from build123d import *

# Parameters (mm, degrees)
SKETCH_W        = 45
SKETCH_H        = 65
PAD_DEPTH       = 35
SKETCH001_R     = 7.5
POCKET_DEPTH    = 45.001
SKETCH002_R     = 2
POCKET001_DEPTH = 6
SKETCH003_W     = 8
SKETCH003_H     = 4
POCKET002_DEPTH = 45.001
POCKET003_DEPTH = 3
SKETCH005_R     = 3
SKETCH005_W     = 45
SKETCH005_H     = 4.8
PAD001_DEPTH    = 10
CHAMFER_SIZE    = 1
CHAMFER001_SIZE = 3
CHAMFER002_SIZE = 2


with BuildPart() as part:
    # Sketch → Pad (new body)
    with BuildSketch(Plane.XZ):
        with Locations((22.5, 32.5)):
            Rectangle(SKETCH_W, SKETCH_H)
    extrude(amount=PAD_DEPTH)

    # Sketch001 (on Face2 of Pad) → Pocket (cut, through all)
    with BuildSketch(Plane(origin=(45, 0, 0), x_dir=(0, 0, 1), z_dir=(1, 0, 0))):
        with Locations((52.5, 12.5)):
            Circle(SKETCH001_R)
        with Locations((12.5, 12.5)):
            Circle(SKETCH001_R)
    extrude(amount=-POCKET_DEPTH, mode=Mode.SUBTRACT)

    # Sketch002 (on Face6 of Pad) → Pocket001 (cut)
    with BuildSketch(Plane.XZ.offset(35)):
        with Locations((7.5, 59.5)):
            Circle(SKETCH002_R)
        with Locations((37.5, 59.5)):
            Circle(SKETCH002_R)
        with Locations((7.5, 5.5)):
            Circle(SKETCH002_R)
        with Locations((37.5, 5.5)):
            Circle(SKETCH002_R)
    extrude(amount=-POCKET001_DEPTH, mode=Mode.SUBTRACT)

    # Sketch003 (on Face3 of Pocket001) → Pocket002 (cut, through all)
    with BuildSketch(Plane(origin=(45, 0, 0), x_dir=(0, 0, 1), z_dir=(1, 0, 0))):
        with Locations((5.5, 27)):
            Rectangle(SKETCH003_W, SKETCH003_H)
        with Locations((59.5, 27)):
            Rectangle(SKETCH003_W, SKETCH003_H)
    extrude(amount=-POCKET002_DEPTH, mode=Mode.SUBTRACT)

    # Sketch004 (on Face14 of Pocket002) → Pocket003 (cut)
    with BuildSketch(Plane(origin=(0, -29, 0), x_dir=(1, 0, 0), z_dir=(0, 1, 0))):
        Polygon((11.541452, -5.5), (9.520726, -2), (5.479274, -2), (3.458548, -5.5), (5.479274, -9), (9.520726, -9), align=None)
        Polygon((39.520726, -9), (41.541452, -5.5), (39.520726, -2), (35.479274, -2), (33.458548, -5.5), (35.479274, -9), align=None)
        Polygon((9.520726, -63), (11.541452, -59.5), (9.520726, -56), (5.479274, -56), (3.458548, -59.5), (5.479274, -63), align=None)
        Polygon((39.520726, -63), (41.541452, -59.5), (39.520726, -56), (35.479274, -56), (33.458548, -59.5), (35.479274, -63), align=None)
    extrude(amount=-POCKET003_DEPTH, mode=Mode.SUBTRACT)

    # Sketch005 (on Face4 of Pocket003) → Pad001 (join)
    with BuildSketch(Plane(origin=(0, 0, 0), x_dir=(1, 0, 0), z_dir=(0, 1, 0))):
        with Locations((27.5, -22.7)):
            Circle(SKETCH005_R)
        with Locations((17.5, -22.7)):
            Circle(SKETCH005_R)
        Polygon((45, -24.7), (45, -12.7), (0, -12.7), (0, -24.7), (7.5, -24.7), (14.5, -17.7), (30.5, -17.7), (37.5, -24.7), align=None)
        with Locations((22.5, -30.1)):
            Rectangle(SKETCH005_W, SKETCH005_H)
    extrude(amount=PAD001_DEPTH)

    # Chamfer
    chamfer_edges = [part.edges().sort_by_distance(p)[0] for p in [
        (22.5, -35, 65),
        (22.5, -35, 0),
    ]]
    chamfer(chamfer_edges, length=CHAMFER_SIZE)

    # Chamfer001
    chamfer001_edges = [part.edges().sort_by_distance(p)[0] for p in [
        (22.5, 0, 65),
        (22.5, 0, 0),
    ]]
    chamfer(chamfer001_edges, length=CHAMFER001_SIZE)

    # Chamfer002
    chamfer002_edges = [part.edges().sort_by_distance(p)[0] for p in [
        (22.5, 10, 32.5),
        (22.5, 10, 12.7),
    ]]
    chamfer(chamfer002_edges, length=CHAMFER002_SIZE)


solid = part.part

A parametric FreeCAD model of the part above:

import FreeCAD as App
import Part
import Sketcher
Q = App.Units.Quantity


def edges_at(feature, points):
    """Names of the edges that pass closest to the given points."""
    edges = feature.Shape.Edges
    near = lambda p: min(range(len(edges)), key=lambda i: edges[i].distToShape(Part.Vertex(*p))[0])
    return sorted({f"Edge{near(p) + 1}" for p in points})


def add_polygon(sketch, points):
    """Adds a closed chain of lines whose ends are joined by coincident constraints."""
    first, n = sketch.GeometryCount, len(points)
    for a, b in zip(points, points[1:] + points[:1]):
        sketch.addGeometry(Part.LineSegment(App.Vector(*a, 0), App.Vector(*b, 0)), False)
    for i in range(n):
        sketch.addConstraint(Sketcher.Constraint("Coincident", first + i, 2, first + (i + 1) % n, 1))

doc = App.newDocument("Part")
body = doc.addObject("PartDesign::Body", "Body")

# Sketch on XZ plane
sketch1 = body.newObject("Sketcher::SketchObject", "Sketch")
sketch1.AttachmentSupport = (doc.getObject("XZ_Plane"), [""])
sketch1.MapMode = "FlatFace"
add_polygon(sketch1, [(0, 65), (0, 0), (45, 0), (45, 65)])  # lines 0-3
sketch1.addConstraint(Sketcher.Constraint("Vertical", 0))
sketch1.addConstraint(Sketcher.Constraint("Horizontal", 1))
sketch1.addConstraint(Sketcher.Constraint("Vertical", 2))
sketch1.addConstraint(Sketcher.Constraint("Horizontal", 3))
sketch1.addConstraint(Sketcher.Constraint("Coincident", 0, 2, -1, 1))
sketch1.addConstraint(Sketcher.Constraint("DistanceX", 1, 1, 1, 2, 45.0))
sketch1.addConstraint(Sketcher.Constraint("DistanceY", 0, 2, 0, 1, 65.0))
pad1 = body.newObject("PartDesign::Pad", "Pad")
pad1.Profile = sketch1
pad1.Length = 35

# Sketch on YZ plane
sketch2 = body.newObject("Sketcher::SketchObject", "Sketch001")
sketch2.AttachmentSupport = (doc.getObject("YZ_Plane"), [""])
sketch2.MapMode = "FlatFace"
sketch2.AttachmentOffset = App.Placement(App.Vector(0, 0, 45), App.Rotation())
sketch2.addGeometry(Part.Circle(App.Vector(-12, 52, 0), App.Vector(0, 0, 1), 8), False)
sketch2.addGeometry(Part.Circle(App.Vector(-12, 12, 0), App.Vector(0, 0, 1), 8), False)
sketch2.addConstraint(Sketcher.Constraint("Equal", 0, 1))
sketch2.addConstraint(Sketcher.Constraint("Vertical", 0, 3, 1, 3))
sketch2.addConstraint(Sketcher.Constraint("Diameter", 0, 15.0))
sketch2.addConstraint(Sketcher.Constraint("DistanceY", 1, 3, 0, 3, 40.0))
sketch2.addConstraint(Sketcher.Constraint("DistanceX", 0, 3, -1, 1, 12.5))
sketch2.addConstraint(Sketcher.Constraint("DistanceY", -1, 1, 0, 3, 52.5))
pocket1 = body.newObject("PartDesign::Pocket", "Pocket")
pocket1.Profile = sketch2
pocket1.Type = "ThroughAll"

# Sketch on XZ plane
sketch3 = body.newObject("Sketcher::SketchObject", "Sketch002")
sketch3.AttachmentSupport = (doc.getObject("XZ_Plane"), [""])
sketch3.MapMode = "FlatFace"
sketch3.AttachmentOffset = App.Placement(App.Vector(0, 0, 35), App.Rotation())
sketch3.addGeometry(Part.Circle(App.Vector(7.5, 59.5, 0), App.Vector(0, 0, 1), 2), False)
sketch3.addGeometry(Part.Circle(App.Vector(37.5, 59.5, 0), App.Vector(0, 0, 1), 2), False)
sketch3.addGeometry(Part.Circle(App.Vector(7.5, 5.5, 0), App.Vector(0, 0, 1), 2), False)
sketch3.addGeometry(Part.Circle(App.Vector(37.5, 5.5, 0), App.Vector(0, 0, 1), 2), False)
sketch3.addConstraint(Sketcher.Constraint("Equal", 0, 1))
sketch3.addConstraint(Sketcher.Constraint("Equal", 1, 2))
sketch3.addConstraint(Sketcher.Constraint("Equal", 2, 3))
sketch3.addConstraint(Sketcher.Constraint("Horizontal", 0, 3, 1, 3))
sketch3.addConstraint(Sketcher.Constraint("Horizontal", 2, 3, 3, 3))
sketch3.addConstraint(Sketcher.Constraint("Vertical", 0, 3, 2, 3))
sketch3.addConstraint(Sketcher.Constraint("Vertical", 1, 3, 3, 3))
sketch3.addConstraint(Sketcher.Constraint("Diameter", 0, 4.0))
sketch3.addConstraint(Sketcher.Constraint("DistanceX", 0, 3, 1, 3, 30.0))
sketch3.addConstraint(Sketcher.Constraint("DistanceY", 2, 3, 0, 3, 54.0))
sketch3.addConstraint(Sketcher.Constraint("DistanceX", -1, 1, 0, 3, 7.5))
sketch3.addConstraint(Sketcher.Constraint("DistanceY", -1, 1, 0, 3, 59.5))
pocket2 = body.newObject("PartDesign::Pocket", "Pocket001")
pocket2.Profile = sketch3
pocket2.Length = 6

# Sketch on YZ plane
sketch4 = body.newObject("Sketcher::SketchObject", "Sketch003")
sketch4.AttachmentSupport = (doc.getObject("YZ_Plane"), [""])
sketch4.MapMode = "FlatFace"
sketch4.AttachmentOffset = App.Placement(App.Vector(0, 0, 45), App.Rotation())
add_polygon(sketch4, [(-29, 1.5), (-25, 1.5), (-25, 9.5), (-29, 9.5)])  # lines 0-3
add_polygon(sketch4, [(-29, 55.5), (-25, 55.5), (-25, 63.5), (-29, 63.5)])  # lines 4-7
sketch4.addConstraint(Sketcher.Constraint("Horizontal", 0))
sketch4.addConstraint(Sketcher.Constraint("Vertical", 1))
sketch4.addConstraint(Sketcher.Constraint("Horizontal", 2))
sketch4.addConstraint(Sketcher.Constraint("Vertical", 3))
sketch4.addConstraint(Sketcher.Constraint("Horizontal", 4))
sketch4.addConstraint(Sketcher.Constraint("Vertical", 5))
sketch4.addConstraint(Sketcher.Constraint("Horizontal", 6))
sketch4.addConstraint(Sketcher.Constraint("Vertical", 7))
sketch4.addConstraint(Sketcher.Constraint("Vertical", 1, 2, 4, 2))
sketch4.addConstraint(Sketcher.Constraint("Vertical", 3, 2, 6, 2))
sketch4.addConstraint(Sketcher.Constraint("Equal", 3, 5))
sketch4.addConstraint(Sketcher.Constraint("DistanceX", 0, 1, 0, 2, 4.0))
sketch4.addConstraint(Sketcher.Constraint("DistanceY", 1, 1, 1, 2, 8.0))
sketch4.addConstraint(Sketcher.Constraint("DistanceX", 0, 2, -1, 1, 25.0))
sketch4.addConstraint(Sketcher.Constraint("DistanceY", 1, 2, 4, 2, 46.0))
sketch4.addConstraint(Sketcher.Constraint("DistanceY", -1, 1, 0, 2, 1.5))
pocket3 = body.newObject("PartDesign::Pocket", "Pocket002")
pocket3.Profile = sketch4
pocket3.Type = "ThroughAll"

# Sketch on XZ plane
sketch5 = body.newObject("Sketcher::SketchObject", "Sketch004")
sketch5.AttachmentSupport = (doc.getObject("XZ_Plane"), [""])
sketch5.MapMode = "FlatFace"
sketch5.AttachmentOffset = App.Placement(App.Vector(0, 0, 29), App.Rotation())
add_polygon(sketch5, [(11.5, 5.5), (9.5, 2), (5.5, 2), (3.5, 5.5), (5.5, 9), (9.5, 9)])  # lines 0-5
add_polygon(sketch5, [(39.5, 9), (41.5, 5.5), (39.5, 2), (35.5, 2), (33.5, 5.5), (35.5, 9)])  # lines 6-11
add_polygon(sketch5, [(9.5, 63), (11.5, 59.5), (9.5, 56), (5.5, 56), (3.5, 59.5), (5.5, 63)])  # lines 12-17
add_polygon(sketch5, [(39.5, 63), (41.5, 59.5), (39.5, 56), (35.5, 56), (33.5, 59.5), (35.5, 63)])  # lines 18-23
sketch5.addConstraint(Sketcher.Constraint("Horizontal", 1))
sketch5.addConstraint(Sketcher.Constraint("Horizontal", 4))
sketch5.addConstraint(Sketcher.Constraint("Horizontal", 8))
sketch5.addConstraint(Sketcher.Constraint("Horizontal", 11))
sketch5.addConstraint(Sketcher.Constraint("Horizontal", 14))
sketch5.addConstraint(Sketcher.Constraint("Horizontal", 17))
sketch5.addConstraint(Sketcher.Constraint("Horizontal", 20))
sketch5.addConstraint(Sketcher.Constraint("Horizontal", 23))
sketch5.addConstraint(Sketcher.Constraint("Parallel", 0, 3))
sketch5.addConstraint(Sketcher.Constraint("Parallel", 2, 5))
sketch5.addConstraint(Sketcher.Constraint("Parallel", 5, 6))
sketch5.addConstraint(Sketcher.Constraint("Parallel", 3, 7))
sketch5.addConstraint(Sketcher.Constraint("Parallel", 6, 9))
sketch5.addConstraint(Sketcher.Constraint("Parallel", 7, 10))
sketch5.addConstraint(Sketcher.Constraint("Parallel", 9, 12))
sketch5.addConstraint(Sketcher.Constraint("Parallel", 10, 13))
sketch5.addConstraint(Sketcher.Constraint("Parallel", 12, 15))
sketch5.addConstraint(Sketcher.Constraint("Parallel", 13, 16))
sketch5.addConstraint(Sketcher.Constraint("Parallel", 15, 18))
sketch5.addConstraint(Sketcher.Constraint("Parallel", 16, 19))
sketch5.addConstraint(Sketcher.Constraint("Parallel", 18, 21))
sketch5.addConstraint(Sketcher.Constraint("Parallel", 19, 22))
sketch5.addConstraint(Sketcher.Constraint("Horizontal", 2, 2, 5, 2))
sketch5.addConstraint(Sketcher.Constraint("Horizontal", 5, 2, 6, 2))
sketch5.addConstraint(Sketcher.Constraint("Horizontal", 1, 2, 7, 2))
sketch5.addConstraint(Sketcher.Constraint("Horizontal", 6, 2, 9, 2))
sketch5.addConstraint(Sketcher.Constraint("Horizontal", 4, 2, 10, 2))
sketch5.addConstraint(Sketcher.Constraint("Horizontal", 12, 2, 15, 2))
sketch5.addConstraint(Sketcher.Constraint("Horizontal", 15, 2, 18, 2))
sketch5.addConstraint(Sketcher.Constraint("Horizontal", 14, 2, 19, 2))
sketch5.addConstraint(Sketcher.Constraint("Horizontal", 18, 2, 21, 2))
sketch5.addConstraint(Sketcher.Constraint("Horizontal", 17, 2, 22, 2))
sketch5.addConstraint(Sketcher.Constraint("Vertical", 1, 2, 3, 2))
sketch5.addConstraint(Sketcher.Constraint("Vertical", 0, 2, 4, 2))
sketch5.addConstraint(Sketcher.Constraint("Vertical", 5, 2, 12, 2))
sketch5.addConstraint(Sketcher.Constraint("Vertical", 4, 2, 13, 2))
sketch5.addConstraint(Sketcher.Constraint("Vertical", 3, 2, 14, 2))
sketch5.addConstraint(Sketcher.Constraint("Vertical", 14, 2, 16, 2))
sketch5.addConstraint(Sketcher.Constraint("Vertical", 6, 2, 18, 2))
sketch5.addConstraint(Sketcher.Constraint("Vertical", 10, 2, 20, 2))
sketch5.addConstraint(Sketcher.Constraint("Equal", 4, 8))
sketch5.addConstraint(Sketcher.Constraint("Angle", 0, Q("-120.000001 deg")))
sketch5.addConstraint(Sketcher.Constraint("DistanceY", -1, 1, 0, 2, 2.0))
sketch5.addConstraint(Sketcher.Constraint("DistanceY", -1, 1, 3, 2, 9.0))
sketch5.addConstraint(Sketcher.Constraint("DistanceY", -1, 1, 13, 2, 56.0))
sketch5.addConstraint(Sketcher.Constraint("DistanceX", 5, 2, 6, 2, 30.0))
sketch5.addConstraint(Sketcher.Constraint("DistanceX", 1, 2, 1, 1, 4.041452))
sketch5.addConstraint(Sketcher.Constraint("DistanceX", -1, 1, 2, 2, 3.458548))
pocket4 = body.newObject("PartDesign::Pocket", "Pocket003")
pocket4.Profile = sketch5
pocket4.Length = 3
pocket4.Reversed = True

# Sketch on XZ plane
sketch6 = body.newObject("Sketcher::SketchObject", "Sketch005")
sketch6.AttachmentSupport = (doc.getObject("XZ_Plane"), [""])
sketch6.MapMode = "FlatFace"
sketch6.addGeometry(Part.Circle(App.Vector(27.5, 22.7, 0), App.Vector(0, 0, 1), 3), False)  # 0
sketch6.addGeometry(Part.Circle(App.Vector(17.5, 22.7, 0), App.Vector(0, 0, 1), 3), False)  # 1
add_polygon(sketch6, [(45, 24.7), (45, 12.7), (0, 12.7), (0, 24.7), (7.5, 24.7), (14.5, 17.7), (30.5, 17.7), (37.5, 24.7)])  # lines 2-9
add_polygon(sketch6, [(0, 27.7), (0, 32.5), (45, 32.5), (45, 27.7)])  # lines 10-13
sketch6.addConstraint(Sketcher.Constraint("Vertical", 2))
sketch6.addConstraint(Sketcher.Constraint("Horizontal", 3))
sketch6.addConstraint(Sketcher.Constraint("Vertical", 4))
sketch6.addConstraint(Sketcher.Constraint("Horizontal", 5))
sketch6.addConstraint(Sketcher.Constraint("Horizontal", 7))
sketch6.addConstraint(Sketcher.Constraint("Horizontal", 9))
sketch6.addConstraint(Sketcher.Constraint("Vertical", 10))
sketch6.addConstraint(Sketcher.Constraint("Horizontal", 11))
sketch6.addConstraint(Sketcher.Constraint("Vertical", 12))
sketch6.addConstraint(Sketcher.Constraint("Horizontal", 13))
sketch6.addConstraint(Sketcher.Constraint("Equal", 0, 1))
sketch6.addConstraint(Sketcher.Constraint("PointOnObject", 3, 2, -2))
sketch6.addConstraint(Sketcher.Constraint("PointOnObject", 10, 2, -2))
sketch6.addConstraint(Sketcher.Constraint("Perpendicular", 6, 8))
sketch6.addConstraint(Sketcher.Constraint("Horizontal", 0, 3, 1, 3))
sketch6.addConstraint(Sketcher.Constraint("Horizontal", 5, 2, 8, 2))
sketch6.addConstraint(Sketcher.Constraint("Vertical", 9, 2, 11, 2))
sketch6.addConstraint(Sketcher.Constraint("Equal", 5, 9))
sketch6.addConstraint(Sketcher.Constraint("Equal", 6, 8))
sketch6.addConstraint(Sketcher.Constraint("Diameter", 0, 6.0))
sketch6.addConstraint(Sketcher.Constraint("DistanceX", 3, 2, 3, 1, 45.0))
sketch6.addConstraint(Sketcher.Constraint("DistanceX", 7, 1, 7, 2, 16.0))
sketch6.addConstraint(Sketcher.Constraint("DistanceY", 2, 2, 2, 1, 12.0))
sketch6.addConstraint(Sketcher.Constraint("DistanceX", 5, 1, 5, 2, 7.5))
sketch6.addConstraint(Sketcher.Constraint("DistanceY", 10, 1, 10, 2, 4.8))
sketch6.addConstraint(Sketcher.Constraint("DistanceX", 1, 3, 0, 3, 10.0))
sketch6.addConstraint(Sketcher.Constraint("DistanceY", 2, 2, 0, 3, 10.0))
sketch6.addConstraint(Sketcher.Constraint("DistanceX", 5, 2, 1, 3, 10.0))
sketch6.addConstraint(Sketcher.Constraint("DistanceY", 9, 2, 12, 2, 3.0))
sketch6.addConstraint(Sketcher.Constraint("DistanceY", -1, 1, 0, 3, 22.7))
pad2 = body.newObject("PartDesign::Pad", "Pad001")
pad2.Profile = sketch6
pad2.Length = 10
pad2.Reversed = True
doc.recompute()

chamfer = body.newObject("PartDesign::Chamfer", "Chamfer")
chamfer.Base = (pad2, edges_at(pad2, [(22.5, -35, 65), (22.5, -35, 0)]))
chamfer.Size = 1
doc.recompute()

chamfer2 = body.newObject("PartDesign::Chamfer", "Chamfer001")
chamfer2.Base = (chamfer, edges_at(chamfer, [(22.5, 0, 65), (22.5, 0, 0)]))
chamfer2.Size = 3
doc.recompute()

chamfer3 = body.newObject("PartDesign::Chamfer", "Chamfer002")
chamfer3.Base = (chamfer2, edges_at(chamfer2, [(22.5, 10, 32.5), (22.5, 10, 12.7)]))
chamfer3.Size = 2

doc.recompute()
